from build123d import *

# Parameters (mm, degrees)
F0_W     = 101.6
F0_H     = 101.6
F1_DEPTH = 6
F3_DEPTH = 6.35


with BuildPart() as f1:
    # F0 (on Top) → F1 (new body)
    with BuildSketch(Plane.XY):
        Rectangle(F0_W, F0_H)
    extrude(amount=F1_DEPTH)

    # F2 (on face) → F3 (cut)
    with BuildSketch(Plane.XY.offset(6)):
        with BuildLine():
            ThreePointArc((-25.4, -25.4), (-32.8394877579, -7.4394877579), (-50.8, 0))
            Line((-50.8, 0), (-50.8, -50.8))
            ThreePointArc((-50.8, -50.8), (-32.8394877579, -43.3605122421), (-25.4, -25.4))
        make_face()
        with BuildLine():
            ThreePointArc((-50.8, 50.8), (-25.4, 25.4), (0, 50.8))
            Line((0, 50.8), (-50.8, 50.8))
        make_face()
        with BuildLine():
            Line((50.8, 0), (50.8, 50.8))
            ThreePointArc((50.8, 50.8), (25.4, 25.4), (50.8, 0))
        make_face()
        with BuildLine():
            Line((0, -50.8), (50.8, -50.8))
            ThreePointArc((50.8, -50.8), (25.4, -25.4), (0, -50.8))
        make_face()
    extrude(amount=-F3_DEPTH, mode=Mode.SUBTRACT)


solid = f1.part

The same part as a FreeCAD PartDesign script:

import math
import FreeCAD as App
import Part
import Sketcher
from FreeCAD import Vector
Q = App.Units.Quantity

doc = App.newDocument("Part")
params = doc.addObject("Spreadsheet::Sheet", "Params")
for row, (alias, value) in enumerate([
    ("sketch1_width", "4 in"),
    ("pad1_length", "6 mm"),
    ("sketch2_radius", "1 in"),
    ("pocket1_length", "0.25 in"),
], start=1):
    params.set(f"A{row}", alias)
    params.set(f"B{row}", "=" + value)
    params.setAlias(f"B{row}", alias)

body = doc.addObject("PartDesign::Body", "Body")

# Sketch on XY plane
sketch1 = doc.addObject("Sketcher::SketchObject", "Sketch")
body.addObject(sketch1)
sketch1.AttachmentSupport = (doc.XY_Plane, [""])
sketch1.MapMode = "FlatFace"
sketch1.addGeometry(Part.LineSegment(Vector(-50.8, 50.8, 0), Vector(-50.8, -50.8, 0)), False)
sketch1.addGeometry(Part.LineSegment(Vector(-50.8, -50.8, 0), Vector(50.8, -50.8, 0)), False)
sketch1.addGeometry(Part.LineSegment(Vector(50.8, -50.8, 0), Vector(50.8, 50.8, 0)), False)
sketch1.addGeometry(Part.LineSegment(Vector(50.8, 50.8, 0), Vector(-50.8, 50.8, 0)), False)
sketch1.addConstraint(Sketcher.Constraint("Coincident", 0, 2, 1, 1))
sketch1.addConstraint(Sketcher.Constraint("Coincident", 1, 2, 2, 1))
sketch1.addConstraint(Sketcher.Constraint("Coincident", 2, 2, 3, 1))
sketch1.addConstraint(Sketcher.Constraint("Coincident", 3, 2, 0, 1))
sketch1.addConstraint(Sketcher.Constraint("Vertical", 0))
sketch1.addConstraint(Sketcher.Constraint("Horizontal", 1))
sketch1.addConstraint(Sketcher.Constraint("Vertical", 2))
sketch1.addConstraint(Sketcher.Constraint("Horizontal", 3))
sketch1.addConstraint(Sketcher.Constraint("Symmetric", 0, 2, 2, 2, -1, 1))
sketch1.addConstraint(Sketcher.Constraint("Equal", 3, 0))
sketch1.addConstraint(Sketcher.Constraint("DistanceX", 1, 1, 1, 2, Q("4 in")))
sketch1.setExpression("Constraints[10]", "Params.sketch1_width")
pad1 = doc.addObject("PartDesign::Pad", "Pad")
body.addObject(pad1)
pad1.Profile = sketch1
pad1.setExpression("Length", "Params.pad1_length")

# Sketch on XY plane
sketch2 = doc.addObject("Sketcher::SketchObject", "Sketch001")
body.addObject(sketch2)
sketch2.AttachmentSupport = (doc.XY_Plane, [""])
sketch2.MapMode = "FlatFace"
sketch2.AttachmentOffset = App.Placement(Vector(0, 0, 6), App.Rotation())
sketch2.addGeometry(Part.ArcOfCircle(Part.Circle(Vector(-50.8, -25.4, 0), Vector(0, 0, 1), 25.4), math.radians(0), math.radians(90)), False)
sketch2.addGeometry(Part.LineSegment(Vector(-50.8, 0, 0), Vector(-50.8, -50.8, 0)), False)
sketch2.addGeometry(Part.ArcOfCircle(Part.Circle(Vector(-50.8, -25.4, 0), Vector(0, 0, 1), 25.4), math.radians(-90), math.radians(0)), False)
sketch2.addGeometry(Part.ArcOfCircle(Part.Circle(Vector(-25.4, 50.8, 0), Vector(0, 0, 1), 25.4), math.radians(180), math.radians(360)), False)
sketch2.addGeometry(Part.LineSegment(Vector(0, 50.8, 0), Vector(-50.8, 50.8, 0)), False)
sketch2.addGeometry(Part.LineSegment(Vector(50.8, 0, 0), Vector(50.8, 50.8, 0)), False)
sketch2.addGeometry(Part.ArcOfCircle(Part.Circle(Vector(50.8, 25.4, 0), Vector(0, 0, 1), 25.4), math.radians(90), math.radians(270)), False)
sketch2.addGeometry(Part.LineSegment(Vector(0, -50.8, 0), Vector(50.8, -50.8, 0)), False)
sketch2.addGeometry(Part.ArcOfCircle(Part.Circle(Vector(25.4, -50.8, 0), Vector(0, 0, 1), 25.4), math.radians(0), math.radians(180)), False)
sketch2.addConstraint(Sketcher.Constraint("Coincident", 0, 2, 1, 1))
sketch2.addConstraint(Sketcher.Constraint("Coincident", 1, 2, 2, 1))
sketch2.addConstraint(Sketcher.Constraint("Tangent", 2, 2, 0, 1))
sketch2.addConstraint(Sketcher.Constraint("Coincident", 3, 1, 4, 2))
sketch2.addConstraint(Sketcher.Constraint("Coincident", 4, 1, 3, 2))
sketch2.addConstraint(Sketcher.Constraint("Coincident", 5, 1, 6, 2))
sketch2.addConstraint(Sketcher.Constraint("Coincident", 6, 1, 5, 2))
sketch2.addConstraint(Sketcher.Constraint("Coincident", 7, 1, 8, 2))
sketch2.addConstraint(Sketcher.Constraint("Coincident", 8, 1, 7, 2))
sketch2.addConstraint(Sketcher.Constraint("Vertical", 1))
sketch2.addConstraint(Sketcher.Constraint("Horizontal", 4))
sketch2.addConstraint(Sketcher.Constraint("Vertical", 5))
sketch2.addConstraint(Sketcher.Constraint("Horizontal", 7))
sketch2.addConstraint(Sketcher.Constraint("Equal", 0, 2))
sketch2.addConstraint(Sketcher.Constraint("Equal", 2, 3))
sketch2.addConstraint(Sketcher.Constraint("Equal", 3, 6))
sketch2.addConstraint(Sketcher.Constraint("Equal", 6, 8))
sketch2.addConstraint(Sketcher.Constraint("Symmetric", 0, 3, 6, 3, -1, 1))
sketch2.addConstraint(Sketcher.Constraint("Symmetric", 3, 3, 8, 3, -1, 1))
sketch2.addConstraint(Sketcher.Constraint("Symmetric", 0, 2, 5, 1, -2))
sketch2.addConstraint(Sketcher.Constraint("Symmetric", 3, 1, 6, 1, -2))
sketch2.addConstraint(Sketcher.Constraint("Symmetric", 4, 1, 7, 1, -1))
sketch2.addConstraint(Sketcher.Constraint("Horizontal", 8, 3, 1, 2))
sketch2.addConstraint(Sketcher.Constraint("Horizontal", 0, 3, 2, 2))
sketch2.addConstraint(Sketcher.Constraint("Vertical", 2, 3, 0, 2))
sketch2.addConstraint(Sketcher.Constraint("Radius", 0, Q("1 in")))
sketch2.setExpression("Constraints[25]", "Params.sketch2_radius")
pocket1 = doc.addObject("PartDesign::Pocket", "Pocket")
body.addObject(pocket1)
pocket1.Profile = sketch2
pocket1.setExpression("Length", "Params.pocket1_length")

doc.recompute()
